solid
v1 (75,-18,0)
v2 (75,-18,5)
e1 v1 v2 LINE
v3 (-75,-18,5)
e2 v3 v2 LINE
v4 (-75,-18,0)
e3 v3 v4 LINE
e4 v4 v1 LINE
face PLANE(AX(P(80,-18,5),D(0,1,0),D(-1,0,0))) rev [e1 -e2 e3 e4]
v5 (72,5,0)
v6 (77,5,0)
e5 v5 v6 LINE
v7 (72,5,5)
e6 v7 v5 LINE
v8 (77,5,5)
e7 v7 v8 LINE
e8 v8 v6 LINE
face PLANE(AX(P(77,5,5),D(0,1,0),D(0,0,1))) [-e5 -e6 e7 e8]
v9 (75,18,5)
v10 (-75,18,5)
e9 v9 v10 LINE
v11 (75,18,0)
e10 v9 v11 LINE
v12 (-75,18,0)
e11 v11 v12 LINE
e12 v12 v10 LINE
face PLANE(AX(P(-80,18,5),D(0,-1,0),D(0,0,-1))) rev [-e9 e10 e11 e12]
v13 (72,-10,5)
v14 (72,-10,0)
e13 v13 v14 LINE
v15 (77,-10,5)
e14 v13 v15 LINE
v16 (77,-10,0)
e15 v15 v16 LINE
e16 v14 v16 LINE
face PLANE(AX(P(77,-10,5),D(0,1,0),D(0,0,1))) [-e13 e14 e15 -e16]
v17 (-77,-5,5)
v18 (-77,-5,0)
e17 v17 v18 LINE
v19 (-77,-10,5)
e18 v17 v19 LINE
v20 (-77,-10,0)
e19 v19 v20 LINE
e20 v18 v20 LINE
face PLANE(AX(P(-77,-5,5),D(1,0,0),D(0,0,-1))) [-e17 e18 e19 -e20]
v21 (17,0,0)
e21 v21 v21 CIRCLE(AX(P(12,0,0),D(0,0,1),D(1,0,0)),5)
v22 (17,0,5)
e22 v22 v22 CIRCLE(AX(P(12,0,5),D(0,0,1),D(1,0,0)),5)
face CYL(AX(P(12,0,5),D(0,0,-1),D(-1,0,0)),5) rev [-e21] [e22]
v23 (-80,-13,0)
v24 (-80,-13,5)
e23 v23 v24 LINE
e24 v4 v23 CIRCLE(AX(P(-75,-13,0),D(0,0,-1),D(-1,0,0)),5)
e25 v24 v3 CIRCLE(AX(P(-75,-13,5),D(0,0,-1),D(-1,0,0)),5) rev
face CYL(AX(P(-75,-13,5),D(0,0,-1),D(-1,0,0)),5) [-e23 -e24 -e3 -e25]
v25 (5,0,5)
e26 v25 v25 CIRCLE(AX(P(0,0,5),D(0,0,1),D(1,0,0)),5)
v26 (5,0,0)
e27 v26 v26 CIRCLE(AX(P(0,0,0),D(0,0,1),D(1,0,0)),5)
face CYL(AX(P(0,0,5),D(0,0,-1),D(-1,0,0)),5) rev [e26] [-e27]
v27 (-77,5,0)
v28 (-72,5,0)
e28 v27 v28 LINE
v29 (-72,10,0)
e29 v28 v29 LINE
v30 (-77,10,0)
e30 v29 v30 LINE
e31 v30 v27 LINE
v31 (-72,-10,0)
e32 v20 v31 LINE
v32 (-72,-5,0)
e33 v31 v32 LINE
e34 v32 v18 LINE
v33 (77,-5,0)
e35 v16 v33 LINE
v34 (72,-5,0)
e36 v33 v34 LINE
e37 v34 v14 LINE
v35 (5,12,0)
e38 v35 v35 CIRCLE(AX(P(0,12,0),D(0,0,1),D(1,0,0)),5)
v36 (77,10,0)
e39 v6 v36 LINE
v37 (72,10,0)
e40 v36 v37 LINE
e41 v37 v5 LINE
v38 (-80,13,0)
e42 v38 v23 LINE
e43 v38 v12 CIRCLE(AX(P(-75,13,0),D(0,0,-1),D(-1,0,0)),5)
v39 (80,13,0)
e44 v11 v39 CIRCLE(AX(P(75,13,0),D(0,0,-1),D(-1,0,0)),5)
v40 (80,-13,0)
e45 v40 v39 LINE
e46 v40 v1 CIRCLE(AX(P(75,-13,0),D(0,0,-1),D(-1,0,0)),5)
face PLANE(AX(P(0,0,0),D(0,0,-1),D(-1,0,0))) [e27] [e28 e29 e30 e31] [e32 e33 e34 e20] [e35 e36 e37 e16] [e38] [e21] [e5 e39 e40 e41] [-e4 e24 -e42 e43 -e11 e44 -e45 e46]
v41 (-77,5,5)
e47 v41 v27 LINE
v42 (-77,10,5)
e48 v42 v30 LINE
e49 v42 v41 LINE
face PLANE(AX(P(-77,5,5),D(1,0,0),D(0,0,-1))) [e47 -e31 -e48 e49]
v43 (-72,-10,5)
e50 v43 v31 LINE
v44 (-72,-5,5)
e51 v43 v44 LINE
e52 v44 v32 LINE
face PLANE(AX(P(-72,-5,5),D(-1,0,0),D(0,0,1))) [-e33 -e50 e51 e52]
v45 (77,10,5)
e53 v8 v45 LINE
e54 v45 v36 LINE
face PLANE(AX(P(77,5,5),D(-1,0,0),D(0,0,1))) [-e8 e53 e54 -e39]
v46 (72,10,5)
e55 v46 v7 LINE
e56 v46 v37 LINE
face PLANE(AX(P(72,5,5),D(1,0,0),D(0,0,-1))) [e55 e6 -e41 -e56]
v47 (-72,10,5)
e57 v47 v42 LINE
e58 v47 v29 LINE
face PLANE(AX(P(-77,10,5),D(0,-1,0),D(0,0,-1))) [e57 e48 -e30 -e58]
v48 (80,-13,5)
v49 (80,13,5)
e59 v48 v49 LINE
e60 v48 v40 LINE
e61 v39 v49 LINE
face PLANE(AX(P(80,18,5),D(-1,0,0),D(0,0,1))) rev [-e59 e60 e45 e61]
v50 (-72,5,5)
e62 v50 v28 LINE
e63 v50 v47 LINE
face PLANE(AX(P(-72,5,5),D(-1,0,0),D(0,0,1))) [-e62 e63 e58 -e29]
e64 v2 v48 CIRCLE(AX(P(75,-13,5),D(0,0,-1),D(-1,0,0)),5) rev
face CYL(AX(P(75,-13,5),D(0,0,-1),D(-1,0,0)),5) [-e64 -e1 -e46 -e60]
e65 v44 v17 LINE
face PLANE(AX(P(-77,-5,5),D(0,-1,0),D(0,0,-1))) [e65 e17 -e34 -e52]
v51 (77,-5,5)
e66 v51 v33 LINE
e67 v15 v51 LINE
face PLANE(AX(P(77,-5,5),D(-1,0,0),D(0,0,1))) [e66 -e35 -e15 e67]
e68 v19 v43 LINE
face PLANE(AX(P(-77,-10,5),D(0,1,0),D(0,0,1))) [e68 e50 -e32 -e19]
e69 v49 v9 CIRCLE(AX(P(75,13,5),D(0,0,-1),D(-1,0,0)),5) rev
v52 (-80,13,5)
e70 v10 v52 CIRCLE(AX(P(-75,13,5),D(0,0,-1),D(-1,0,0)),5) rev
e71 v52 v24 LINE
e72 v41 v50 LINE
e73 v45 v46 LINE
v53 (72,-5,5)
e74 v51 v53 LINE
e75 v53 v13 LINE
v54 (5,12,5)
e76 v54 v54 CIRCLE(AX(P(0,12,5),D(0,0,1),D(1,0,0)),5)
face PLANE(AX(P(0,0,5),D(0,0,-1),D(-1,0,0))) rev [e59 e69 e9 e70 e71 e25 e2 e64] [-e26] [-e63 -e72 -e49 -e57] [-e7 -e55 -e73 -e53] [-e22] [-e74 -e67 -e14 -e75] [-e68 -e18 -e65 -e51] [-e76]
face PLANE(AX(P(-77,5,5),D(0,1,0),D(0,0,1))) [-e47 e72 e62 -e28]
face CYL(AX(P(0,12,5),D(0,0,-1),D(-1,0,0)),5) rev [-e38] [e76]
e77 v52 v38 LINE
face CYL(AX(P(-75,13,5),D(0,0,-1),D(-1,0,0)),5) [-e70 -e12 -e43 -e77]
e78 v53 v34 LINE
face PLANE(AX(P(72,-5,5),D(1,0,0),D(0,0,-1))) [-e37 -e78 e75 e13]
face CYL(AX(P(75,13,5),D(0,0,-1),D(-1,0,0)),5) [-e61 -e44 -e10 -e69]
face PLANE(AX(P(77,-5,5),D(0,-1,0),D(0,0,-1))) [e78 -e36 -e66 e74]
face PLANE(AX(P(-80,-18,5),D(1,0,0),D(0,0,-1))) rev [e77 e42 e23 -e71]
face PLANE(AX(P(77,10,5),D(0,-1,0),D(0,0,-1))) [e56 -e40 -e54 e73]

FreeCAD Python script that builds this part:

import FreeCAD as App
import Part
import Sketcher
from FreeCAD import Vector


def edges_at(feature, points):
    """Names of the edges that pass closest to the given points."""
    edges = feature.Shape.Edges
    near = lambda p: min(range(len(edges)), key=lambda i: edges[i].distToShape(Part.Vertex(*p))[0])
    return sorted({f"Edge{near(p) + 1}" for p in points})


def add_polygon(sketch, points):
    """Adds a closed chain of lines whose ends are joined by coincident constraints."""
    first, n = sketch.GeometryCount, len(points)
    for a, b in zip(points, points[1:] + points[:1]):
        sketch.addGeometry(Part.LineSegment(App.Vector(*a, 0), App.Vector(*b, 0)), False)
    for i in range(n):
        sketch.addConstraint(Sketcher.Constraint("Coincident", first + i, 2, first + (i + 1) % n, 1))

doc = App.newDocument("Part")
body = doc.addObject("PartDesign::Body", "Body")

# Sketch on XY plane
sketch1 = body.newObject("Sketcher::SketchObject", "Sketch")
sketch1.AttachmentSupport = (doc.getObject("XY_Plane"), [""])
sketch1.MapMode = "FlatFace"
add_polygon(sketch1, [(-80, 18), (-80, -18), (80, -18), (80, 18)])  # lines 0-3
add_polygon(sketch1, [(-72, -10), (-77, -10), (-77, -5), (-72, -5)])  # lines 4-7
add_polygon(sketch1, [(77, -10), (72, -10), (72, -5), (77, -5)])  # lines 8-11
sketch1.addGeometry(Part.Circle(Vector(0, 0, 0), Vector(0, 0, 1), 5), False)  # 12
sketch1.addGeometry(Part.Circle(Vector(12, 0, 0), Vector(0, 0, 1), 5), False)  # 13
add_polygon(sketch1, [(-72, 5), (-77, 5), (-77, 10), (-72, 10)])  # lines 14-17
add_polygon(sketch1, [(77, 5), (72, 5), (72, 10), (77, 10)])  # lines 18-21
sketch1.addGeometry(Part.Circle(Vector(0, 12, 0), Vector(0, 0, 1), 5), False)  # 22
sketch1.addConstraint(Sketcher.Constraint("Vertical", 0))
sketch1.addConstraint(Sketcher.Constraint("Horizontal", 1))
sketch1.addConstraint(Sketcher.Constraint("Vertical", 2))
sketch1.addConstraint(Sketcher.Constraint("Horizontal", 3))
sketch1.addConstraint(Sketcher.Constraint("Horizontal", 4))
sketch1.addConstraint(Sketcher.Constraint("Vertical", 5))
sketch1.addConstraint(Sketcher.Constraint("Horizontal", 6))
sketch1.addConstraint(Sketcher.Constraint("Vertical", 7))
sketch1.addConstraint(Sketcher.Constraint("Horizontal", 8))
sketch1.addConstraint(Sketcher.Constraint("Vertical", 9))
sketch1.addConstraint(Sketcher.Constraint("Horizontal", 10))
sketch1.addConstraint(Sketcher.Constraint("Vertical", 11))
sketch1.addConstraint(Sketcher.Constraint("Horizontal", 14))
sketch1.addConstraint(Sketcher.Constraint("Vertical", 15))
sketch1.addConstraint(Sketcher.Constraint("Horizontal", 16))
sketch1.addConstraint(Sketcher.Constraint("Vertical", 17))
sketch1.addConstraint(Sketcher.Constraint("Horizontal", 18))
sketch1.addConstraint(Sketcher.Constraint("Vertical", 19))
sketch1.addConstraint(Sketcher.Constraint("Horizontal", 20))
sketch1.addConstraint(Sketcher.Constraint("Vertical", 21))
sketch1.addConstraint(Sketcher.Constraint("Coincident", 12, 3, -1, 1))
sketch1.addConstraint(Sketcher.Constraint("Equal", 12, 13))
sketch1.addConstraint(Sketcher.Constraint("Equal", 13, 22))
sketch1.addConstraint(Sketcher.Constraint("Symmetric", 0, 2, 2, 2, -1, 1))
sketch1.addConstraint(Sketcher.Constraint("Symmetric", 10, 2, 14, 2, -1, 1))
sketch1.addConstraint(Sketcher.Constraint("Symmetric", 8, 2, 16, 2, -1, 1))
sketch1.addConstraint(Sketcher.Constraint("Symmetric", 6, 2, 18, 2, -1, 1))
sketch1.addConstraint(Sketcher.Constraint("Symmetric", 4, 2, 20, 2, -1, 1))
sketch1.addConstraint(Sketcher.Constraint("Symmetric", 7, 2, 8, 2, -2))
sketch1.addConstraint(Sketcher.Constraint("Symmetric", 5, 2, 10, 2, -2))
sketch1.addConstraint(Sketcher.Constraint("PointOnObject", 13, 3, -1))
sketch1.addConstraint(Sketcher.Constraint("PointOnObject", 22, 3, -2))
sketch1.addConstraint(Sketcher.Constraint("Equal", 20, 5))
sketch1.addConstraint(Sketcher.Constraint("Diameter", 12, 10.0))
sketch1.addConstraint(Sketcher.Constraint("DistanceX", 1, 1, 1, 2, 160.0))
sketch1.addConstraint(Sketcher.Constraint("DistanceX", 4, 2, 4, 1, 5.0))
sketch1.addConstraint(Sketcher.Constraint("DistanceY", 0, 2, 0, 1, 36.0))
sketch1.addConstraint(Sketcher.Constraint("DistanceX", -1, 1, 13, 3, 12.0))
sketch1.addConstraint(Sketcher.Constraint("DistanceY", -1, 1, 22, 3, 12.0))
sketch1.addConstraint(Sketcher.Constraint("DistanceX", 4, 2, -1, 1, 77.0))
sketch1.addConstraint(Sketcher.Constraint("DistanceY", 4, 2, -1, 1, 10.0))
pad1 = body.newObject("PartDesign::Pad", "Pad")
pad1.Profile = sketch1
pad1.Length = 5
doc.recompute()

fillet = body.newObject("PartDesign::Fillet", "Fillet")
fillet.Base = (pad1, edges_at(pad1, [
    (-80, 18, 2.5),
    (80, 18, 2.5),
    (80, -18, 2.5),
    (-80, -18, 2.5),
]))
fillet.Radius = 5

doc.recompute()
